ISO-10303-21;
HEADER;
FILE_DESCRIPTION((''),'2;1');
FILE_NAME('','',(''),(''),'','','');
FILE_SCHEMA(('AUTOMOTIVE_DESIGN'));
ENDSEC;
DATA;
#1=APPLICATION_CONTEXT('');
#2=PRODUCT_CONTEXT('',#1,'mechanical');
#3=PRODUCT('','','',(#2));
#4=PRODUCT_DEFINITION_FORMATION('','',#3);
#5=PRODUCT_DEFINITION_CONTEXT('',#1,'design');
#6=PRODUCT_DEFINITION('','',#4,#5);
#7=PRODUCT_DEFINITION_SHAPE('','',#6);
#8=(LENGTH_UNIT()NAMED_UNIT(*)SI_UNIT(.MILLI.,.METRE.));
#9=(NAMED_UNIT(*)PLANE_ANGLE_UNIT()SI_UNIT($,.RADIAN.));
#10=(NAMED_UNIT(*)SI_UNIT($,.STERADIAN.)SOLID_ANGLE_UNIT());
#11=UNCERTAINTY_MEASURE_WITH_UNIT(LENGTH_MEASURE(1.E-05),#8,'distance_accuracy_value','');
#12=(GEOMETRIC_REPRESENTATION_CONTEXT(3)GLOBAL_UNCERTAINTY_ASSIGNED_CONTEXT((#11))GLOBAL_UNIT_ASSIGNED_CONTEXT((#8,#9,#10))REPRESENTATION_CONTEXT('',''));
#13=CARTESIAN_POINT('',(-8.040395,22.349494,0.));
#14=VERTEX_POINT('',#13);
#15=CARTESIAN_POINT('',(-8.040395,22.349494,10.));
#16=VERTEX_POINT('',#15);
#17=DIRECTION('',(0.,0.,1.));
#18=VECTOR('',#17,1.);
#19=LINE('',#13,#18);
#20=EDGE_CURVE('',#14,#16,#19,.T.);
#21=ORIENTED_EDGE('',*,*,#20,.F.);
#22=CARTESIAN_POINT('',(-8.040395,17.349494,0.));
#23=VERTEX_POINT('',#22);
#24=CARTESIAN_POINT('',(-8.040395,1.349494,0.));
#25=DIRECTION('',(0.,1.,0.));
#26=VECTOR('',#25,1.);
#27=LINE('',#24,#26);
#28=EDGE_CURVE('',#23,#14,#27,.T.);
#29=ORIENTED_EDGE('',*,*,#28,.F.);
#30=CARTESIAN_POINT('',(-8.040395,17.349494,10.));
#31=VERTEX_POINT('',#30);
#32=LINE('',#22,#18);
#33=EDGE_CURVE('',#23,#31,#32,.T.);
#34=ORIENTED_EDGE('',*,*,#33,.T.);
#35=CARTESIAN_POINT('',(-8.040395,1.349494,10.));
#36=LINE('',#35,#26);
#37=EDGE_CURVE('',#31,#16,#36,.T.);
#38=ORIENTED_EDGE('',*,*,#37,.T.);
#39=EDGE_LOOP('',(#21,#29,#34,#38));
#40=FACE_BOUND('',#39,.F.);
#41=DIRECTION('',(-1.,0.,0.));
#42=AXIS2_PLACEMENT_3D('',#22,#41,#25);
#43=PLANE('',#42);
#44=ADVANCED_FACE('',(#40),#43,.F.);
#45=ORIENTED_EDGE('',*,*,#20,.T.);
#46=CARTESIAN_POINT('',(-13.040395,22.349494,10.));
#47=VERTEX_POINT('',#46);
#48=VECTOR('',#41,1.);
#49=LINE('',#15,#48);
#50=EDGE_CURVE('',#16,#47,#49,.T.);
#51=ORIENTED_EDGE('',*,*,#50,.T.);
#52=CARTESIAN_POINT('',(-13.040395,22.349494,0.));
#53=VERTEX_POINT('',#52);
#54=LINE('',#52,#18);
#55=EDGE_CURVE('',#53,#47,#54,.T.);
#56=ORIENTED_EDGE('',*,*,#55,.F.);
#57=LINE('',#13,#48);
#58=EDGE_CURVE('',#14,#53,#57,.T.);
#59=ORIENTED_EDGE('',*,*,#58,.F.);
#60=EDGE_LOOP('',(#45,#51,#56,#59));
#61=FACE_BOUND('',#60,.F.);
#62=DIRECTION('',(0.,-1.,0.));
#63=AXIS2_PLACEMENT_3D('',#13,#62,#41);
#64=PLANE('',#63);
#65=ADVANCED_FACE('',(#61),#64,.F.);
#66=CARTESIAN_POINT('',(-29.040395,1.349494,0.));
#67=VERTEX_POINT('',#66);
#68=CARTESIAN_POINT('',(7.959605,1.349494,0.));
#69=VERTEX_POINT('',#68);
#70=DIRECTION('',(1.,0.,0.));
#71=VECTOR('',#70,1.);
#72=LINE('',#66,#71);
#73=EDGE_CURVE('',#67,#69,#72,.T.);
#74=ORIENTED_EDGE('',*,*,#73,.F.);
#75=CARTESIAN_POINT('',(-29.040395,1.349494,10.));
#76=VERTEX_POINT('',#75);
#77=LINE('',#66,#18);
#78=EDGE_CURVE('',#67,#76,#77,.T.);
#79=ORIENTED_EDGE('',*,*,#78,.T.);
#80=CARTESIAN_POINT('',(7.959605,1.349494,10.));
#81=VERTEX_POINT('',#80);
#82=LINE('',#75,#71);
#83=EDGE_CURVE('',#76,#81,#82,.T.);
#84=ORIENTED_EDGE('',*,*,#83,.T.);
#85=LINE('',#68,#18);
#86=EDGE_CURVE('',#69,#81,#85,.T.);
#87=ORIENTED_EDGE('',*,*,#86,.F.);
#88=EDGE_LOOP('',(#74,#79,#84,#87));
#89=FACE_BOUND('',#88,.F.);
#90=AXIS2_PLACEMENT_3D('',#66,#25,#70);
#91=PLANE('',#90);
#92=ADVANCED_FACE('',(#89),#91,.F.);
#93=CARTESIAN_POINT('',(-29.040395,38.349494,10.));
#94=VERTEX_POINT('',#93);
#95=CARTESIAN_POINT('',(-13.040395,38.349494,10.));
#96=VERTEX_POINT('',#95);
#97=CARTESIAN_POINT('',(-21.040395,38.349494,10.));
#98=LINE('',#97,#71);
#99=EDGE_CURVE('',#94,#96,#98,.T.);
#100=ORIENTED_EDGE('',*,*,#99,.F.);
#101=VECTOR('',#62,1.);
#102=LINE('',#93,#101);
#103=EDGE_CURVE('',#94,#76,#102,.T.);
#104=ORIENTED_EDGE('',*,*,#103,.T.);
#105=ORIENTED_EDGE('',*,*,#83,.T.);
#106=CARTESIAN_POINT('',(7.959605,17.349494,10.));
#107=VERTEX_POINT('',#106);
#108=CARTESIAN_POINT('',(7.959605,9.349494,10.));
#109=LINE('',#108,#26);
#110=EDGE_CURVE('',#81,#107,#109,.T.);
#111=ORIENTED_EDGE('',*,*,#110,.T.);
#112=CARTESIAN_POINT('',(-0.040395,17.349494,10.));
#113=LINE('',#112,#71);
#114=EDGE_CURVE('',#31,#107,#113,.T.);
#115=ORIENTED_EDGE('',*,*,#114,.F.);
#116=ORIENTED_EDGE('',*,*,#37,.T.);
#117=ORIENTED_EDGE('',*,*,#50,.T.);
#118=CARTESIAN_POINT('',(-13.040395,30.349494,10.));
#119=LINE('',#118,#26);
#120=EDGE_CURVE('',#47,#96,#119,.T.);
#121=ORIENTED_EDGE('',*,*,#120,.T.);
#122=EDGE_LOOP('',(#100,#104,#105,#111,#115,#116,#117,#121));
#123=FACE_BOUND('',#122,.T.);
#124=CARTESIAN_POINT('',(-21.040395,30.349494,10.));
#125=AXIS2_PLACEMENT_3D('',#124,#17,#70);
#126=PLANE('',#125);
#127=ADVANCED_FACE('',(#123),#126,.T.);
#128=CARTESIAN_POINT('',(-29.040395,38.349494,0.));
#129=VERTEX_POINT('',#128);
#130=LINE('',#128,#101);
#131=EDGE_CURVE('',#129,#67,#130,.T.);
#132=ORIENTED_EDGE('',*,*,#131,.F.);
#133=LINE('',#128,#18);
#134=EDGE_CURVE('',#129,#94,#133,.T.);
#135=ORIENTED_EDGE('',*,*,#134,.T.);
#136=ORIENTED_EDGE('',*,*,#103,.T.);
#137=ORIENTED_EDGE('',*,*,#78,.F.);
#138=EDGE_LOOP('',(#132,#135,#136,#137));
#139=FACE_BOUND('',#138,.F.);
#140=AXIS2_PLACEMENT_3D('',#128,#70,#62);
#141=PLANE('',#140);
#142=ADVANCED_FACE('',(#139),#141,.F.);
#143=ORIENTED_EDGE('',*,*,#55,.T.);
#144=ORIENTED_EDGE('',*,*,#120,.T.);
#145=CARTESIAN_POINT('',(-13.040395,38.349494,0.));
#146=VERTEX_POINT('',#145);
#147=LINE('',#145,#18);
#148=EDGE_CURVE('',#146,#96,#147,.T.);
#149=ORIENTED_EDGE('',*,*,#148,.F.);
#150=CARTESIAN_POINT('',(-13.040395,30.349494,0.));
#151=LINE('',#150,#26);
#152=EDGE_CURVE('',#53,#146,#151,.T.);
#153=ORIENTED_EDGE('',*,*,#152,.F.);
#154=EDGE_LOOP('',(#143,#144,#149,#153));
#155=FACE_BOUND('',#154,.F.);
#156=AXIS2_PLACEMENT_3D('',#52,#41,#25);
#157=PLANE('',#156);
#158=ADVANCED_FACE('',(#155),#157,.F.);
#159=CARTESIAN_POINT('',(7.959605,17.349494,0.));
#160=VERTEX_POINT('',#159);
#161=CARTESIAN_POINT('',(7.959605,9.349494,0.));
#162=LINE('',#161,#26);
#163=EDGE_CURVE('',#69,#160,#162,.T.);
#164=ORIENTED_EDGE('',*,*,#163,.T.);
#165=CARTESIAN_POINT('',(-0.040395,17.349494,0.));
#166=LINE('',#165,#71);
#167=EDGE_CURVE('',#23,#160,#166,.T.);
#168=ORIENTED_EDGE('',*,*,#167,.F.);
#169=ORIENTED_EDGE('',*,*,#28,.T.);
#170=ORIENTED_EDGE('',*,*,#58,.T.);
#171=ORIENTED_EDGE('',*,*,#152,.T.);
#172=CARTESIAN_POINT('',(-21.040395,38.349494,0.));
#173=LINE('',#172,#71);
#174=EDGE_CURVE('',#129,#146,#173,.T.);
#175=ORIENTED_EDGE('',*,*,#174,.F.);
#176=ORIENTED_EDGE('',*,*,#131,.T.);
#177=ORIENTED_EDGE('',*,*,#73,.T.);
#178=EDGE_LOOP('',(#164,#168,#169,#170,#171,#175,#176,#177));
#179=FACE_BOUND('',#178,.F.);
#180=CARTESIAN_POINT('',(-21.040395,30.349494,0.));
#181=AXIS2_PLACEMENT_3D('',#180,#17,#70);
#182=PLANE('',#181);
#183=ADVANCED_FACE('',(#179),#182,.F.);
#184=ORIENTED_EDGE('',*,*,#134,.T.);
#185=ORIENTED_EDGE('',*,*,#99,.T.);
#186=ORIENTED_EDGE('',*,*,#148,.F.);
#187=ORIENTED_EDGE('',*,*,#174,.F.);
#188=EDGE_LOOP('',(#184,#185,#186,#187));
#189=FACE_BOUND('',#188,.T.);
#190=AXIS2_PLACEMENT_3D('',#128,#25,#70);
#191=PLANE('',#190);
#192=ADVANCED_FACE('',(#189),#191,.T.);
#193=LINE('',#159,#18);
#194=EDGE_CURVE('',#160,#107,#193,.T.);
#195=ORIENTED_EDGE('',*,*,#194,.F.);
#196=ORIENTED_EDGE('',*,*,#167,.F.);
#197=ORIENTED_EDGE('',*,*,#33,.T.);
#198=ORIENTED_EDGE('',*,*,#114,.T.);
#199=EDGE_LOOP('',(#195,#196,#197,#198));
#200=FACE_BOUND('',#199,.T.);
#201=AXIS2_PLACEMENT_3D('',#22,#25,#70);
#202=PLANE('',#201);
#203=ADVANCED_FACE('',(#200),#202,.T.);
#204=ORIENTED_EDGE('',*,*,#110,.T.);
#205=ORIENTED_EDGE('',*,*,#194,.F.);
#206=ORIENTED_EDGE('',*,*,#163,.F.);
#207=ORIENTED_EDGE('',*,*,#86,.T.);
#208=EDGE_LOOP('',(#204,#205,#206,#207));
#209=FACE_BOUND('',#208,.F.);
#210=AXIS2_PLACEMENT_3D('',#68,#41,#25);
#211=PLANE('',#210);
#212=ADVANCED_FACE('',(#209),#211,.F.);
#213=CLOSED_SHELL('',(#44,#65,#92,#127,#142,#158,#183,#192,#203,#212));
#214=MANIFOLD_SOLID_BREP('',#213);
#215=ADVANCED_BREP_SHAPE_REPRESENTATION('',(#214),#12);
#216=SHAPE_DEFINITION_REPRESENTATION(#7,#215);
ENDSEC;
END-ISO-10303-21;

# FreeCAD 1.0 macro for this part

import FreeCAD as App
import Part
import Sketcher

V = App.Vector


def add_polygon(sketch, points):
    """Adds a closed chain of lines whose ends are joined by coincident constraints."""
    first, n = sketch.GeometryCount, len(points)
    for a, b in zip(points, points[1:] + points[:1]):
        sketch.addGeometry(Part.LineSegment(App.Vector(*a, 0), App.Vector(*b, 0)), False)
    for i in range(n):
        sketch.addConstraint(Sketcher.Constraint("Coincident", first + i, 2, first + (i + 1) % n, 1))

doc = App.newDocument("Part")
body = doc.addObject("PartDesign::Body", "Body")

# Sketch on XY plane
sketch1 = body.newObject("Sketcher::SketchObject", "Sketch")
sketch1.AttachmentSupport = (doc.getObject("XY_Plane"), [""])
sketch1.MapMode = "FlatFace"
add_polygon(sketch1, [(-29.040395, 38.349494), (-29.040395, 1.349494), (7.959605, 1.349494), (7.959605, 17.349494), (-8.040395, 17.349494), (-8.040395, 22.349494), (-13.040395, 22.349494), (-13.040395, 38.349494)])  # lines 0-7
sketch1.addConstraint([
    Sketcher.Constraint("Vertical", 0),
    Sketcher.Constraint("Horizontal", 1),
    Sketcher.Constraint("Vertical", 2),
    Sketcher.Constraint("Horizontal", 3),
    Sketcher.Constraint("Vertical", 4),
    Sketcher.Constraint("Horizontal", 5),
    Sketcher.Constraint("Vertical", 6),
    Sketcher.Constraint("Horizontal", 7),
    Sketcher.Constraint("Equal", 3, 7),
    Sketcher.Constraint("Equal", 1, 0),
    Sketcher.Constraint("Equal", 7, 2),
    Sketcher.Constraint("Equal", 5, 4),
    Sketcher.Constraint("DistanceX", 1, 1, 1, 2, 37.0),
    Sketcher.Constraint("DistanceX", 3, 2, 3, 1, 16.0),
    Sketcher.Constraint("DistanceX", 0, 2, -1, 1, 29.040395),
    Sketcher.Constraint("DistanceY", -1, 1, 0, 2, 1.349494),
])
pad1 = body.newObject("PartDesign::Pad", "Pad")
pad1.Profile = sketch1
pad1.Length = 10

doc.recompute()
